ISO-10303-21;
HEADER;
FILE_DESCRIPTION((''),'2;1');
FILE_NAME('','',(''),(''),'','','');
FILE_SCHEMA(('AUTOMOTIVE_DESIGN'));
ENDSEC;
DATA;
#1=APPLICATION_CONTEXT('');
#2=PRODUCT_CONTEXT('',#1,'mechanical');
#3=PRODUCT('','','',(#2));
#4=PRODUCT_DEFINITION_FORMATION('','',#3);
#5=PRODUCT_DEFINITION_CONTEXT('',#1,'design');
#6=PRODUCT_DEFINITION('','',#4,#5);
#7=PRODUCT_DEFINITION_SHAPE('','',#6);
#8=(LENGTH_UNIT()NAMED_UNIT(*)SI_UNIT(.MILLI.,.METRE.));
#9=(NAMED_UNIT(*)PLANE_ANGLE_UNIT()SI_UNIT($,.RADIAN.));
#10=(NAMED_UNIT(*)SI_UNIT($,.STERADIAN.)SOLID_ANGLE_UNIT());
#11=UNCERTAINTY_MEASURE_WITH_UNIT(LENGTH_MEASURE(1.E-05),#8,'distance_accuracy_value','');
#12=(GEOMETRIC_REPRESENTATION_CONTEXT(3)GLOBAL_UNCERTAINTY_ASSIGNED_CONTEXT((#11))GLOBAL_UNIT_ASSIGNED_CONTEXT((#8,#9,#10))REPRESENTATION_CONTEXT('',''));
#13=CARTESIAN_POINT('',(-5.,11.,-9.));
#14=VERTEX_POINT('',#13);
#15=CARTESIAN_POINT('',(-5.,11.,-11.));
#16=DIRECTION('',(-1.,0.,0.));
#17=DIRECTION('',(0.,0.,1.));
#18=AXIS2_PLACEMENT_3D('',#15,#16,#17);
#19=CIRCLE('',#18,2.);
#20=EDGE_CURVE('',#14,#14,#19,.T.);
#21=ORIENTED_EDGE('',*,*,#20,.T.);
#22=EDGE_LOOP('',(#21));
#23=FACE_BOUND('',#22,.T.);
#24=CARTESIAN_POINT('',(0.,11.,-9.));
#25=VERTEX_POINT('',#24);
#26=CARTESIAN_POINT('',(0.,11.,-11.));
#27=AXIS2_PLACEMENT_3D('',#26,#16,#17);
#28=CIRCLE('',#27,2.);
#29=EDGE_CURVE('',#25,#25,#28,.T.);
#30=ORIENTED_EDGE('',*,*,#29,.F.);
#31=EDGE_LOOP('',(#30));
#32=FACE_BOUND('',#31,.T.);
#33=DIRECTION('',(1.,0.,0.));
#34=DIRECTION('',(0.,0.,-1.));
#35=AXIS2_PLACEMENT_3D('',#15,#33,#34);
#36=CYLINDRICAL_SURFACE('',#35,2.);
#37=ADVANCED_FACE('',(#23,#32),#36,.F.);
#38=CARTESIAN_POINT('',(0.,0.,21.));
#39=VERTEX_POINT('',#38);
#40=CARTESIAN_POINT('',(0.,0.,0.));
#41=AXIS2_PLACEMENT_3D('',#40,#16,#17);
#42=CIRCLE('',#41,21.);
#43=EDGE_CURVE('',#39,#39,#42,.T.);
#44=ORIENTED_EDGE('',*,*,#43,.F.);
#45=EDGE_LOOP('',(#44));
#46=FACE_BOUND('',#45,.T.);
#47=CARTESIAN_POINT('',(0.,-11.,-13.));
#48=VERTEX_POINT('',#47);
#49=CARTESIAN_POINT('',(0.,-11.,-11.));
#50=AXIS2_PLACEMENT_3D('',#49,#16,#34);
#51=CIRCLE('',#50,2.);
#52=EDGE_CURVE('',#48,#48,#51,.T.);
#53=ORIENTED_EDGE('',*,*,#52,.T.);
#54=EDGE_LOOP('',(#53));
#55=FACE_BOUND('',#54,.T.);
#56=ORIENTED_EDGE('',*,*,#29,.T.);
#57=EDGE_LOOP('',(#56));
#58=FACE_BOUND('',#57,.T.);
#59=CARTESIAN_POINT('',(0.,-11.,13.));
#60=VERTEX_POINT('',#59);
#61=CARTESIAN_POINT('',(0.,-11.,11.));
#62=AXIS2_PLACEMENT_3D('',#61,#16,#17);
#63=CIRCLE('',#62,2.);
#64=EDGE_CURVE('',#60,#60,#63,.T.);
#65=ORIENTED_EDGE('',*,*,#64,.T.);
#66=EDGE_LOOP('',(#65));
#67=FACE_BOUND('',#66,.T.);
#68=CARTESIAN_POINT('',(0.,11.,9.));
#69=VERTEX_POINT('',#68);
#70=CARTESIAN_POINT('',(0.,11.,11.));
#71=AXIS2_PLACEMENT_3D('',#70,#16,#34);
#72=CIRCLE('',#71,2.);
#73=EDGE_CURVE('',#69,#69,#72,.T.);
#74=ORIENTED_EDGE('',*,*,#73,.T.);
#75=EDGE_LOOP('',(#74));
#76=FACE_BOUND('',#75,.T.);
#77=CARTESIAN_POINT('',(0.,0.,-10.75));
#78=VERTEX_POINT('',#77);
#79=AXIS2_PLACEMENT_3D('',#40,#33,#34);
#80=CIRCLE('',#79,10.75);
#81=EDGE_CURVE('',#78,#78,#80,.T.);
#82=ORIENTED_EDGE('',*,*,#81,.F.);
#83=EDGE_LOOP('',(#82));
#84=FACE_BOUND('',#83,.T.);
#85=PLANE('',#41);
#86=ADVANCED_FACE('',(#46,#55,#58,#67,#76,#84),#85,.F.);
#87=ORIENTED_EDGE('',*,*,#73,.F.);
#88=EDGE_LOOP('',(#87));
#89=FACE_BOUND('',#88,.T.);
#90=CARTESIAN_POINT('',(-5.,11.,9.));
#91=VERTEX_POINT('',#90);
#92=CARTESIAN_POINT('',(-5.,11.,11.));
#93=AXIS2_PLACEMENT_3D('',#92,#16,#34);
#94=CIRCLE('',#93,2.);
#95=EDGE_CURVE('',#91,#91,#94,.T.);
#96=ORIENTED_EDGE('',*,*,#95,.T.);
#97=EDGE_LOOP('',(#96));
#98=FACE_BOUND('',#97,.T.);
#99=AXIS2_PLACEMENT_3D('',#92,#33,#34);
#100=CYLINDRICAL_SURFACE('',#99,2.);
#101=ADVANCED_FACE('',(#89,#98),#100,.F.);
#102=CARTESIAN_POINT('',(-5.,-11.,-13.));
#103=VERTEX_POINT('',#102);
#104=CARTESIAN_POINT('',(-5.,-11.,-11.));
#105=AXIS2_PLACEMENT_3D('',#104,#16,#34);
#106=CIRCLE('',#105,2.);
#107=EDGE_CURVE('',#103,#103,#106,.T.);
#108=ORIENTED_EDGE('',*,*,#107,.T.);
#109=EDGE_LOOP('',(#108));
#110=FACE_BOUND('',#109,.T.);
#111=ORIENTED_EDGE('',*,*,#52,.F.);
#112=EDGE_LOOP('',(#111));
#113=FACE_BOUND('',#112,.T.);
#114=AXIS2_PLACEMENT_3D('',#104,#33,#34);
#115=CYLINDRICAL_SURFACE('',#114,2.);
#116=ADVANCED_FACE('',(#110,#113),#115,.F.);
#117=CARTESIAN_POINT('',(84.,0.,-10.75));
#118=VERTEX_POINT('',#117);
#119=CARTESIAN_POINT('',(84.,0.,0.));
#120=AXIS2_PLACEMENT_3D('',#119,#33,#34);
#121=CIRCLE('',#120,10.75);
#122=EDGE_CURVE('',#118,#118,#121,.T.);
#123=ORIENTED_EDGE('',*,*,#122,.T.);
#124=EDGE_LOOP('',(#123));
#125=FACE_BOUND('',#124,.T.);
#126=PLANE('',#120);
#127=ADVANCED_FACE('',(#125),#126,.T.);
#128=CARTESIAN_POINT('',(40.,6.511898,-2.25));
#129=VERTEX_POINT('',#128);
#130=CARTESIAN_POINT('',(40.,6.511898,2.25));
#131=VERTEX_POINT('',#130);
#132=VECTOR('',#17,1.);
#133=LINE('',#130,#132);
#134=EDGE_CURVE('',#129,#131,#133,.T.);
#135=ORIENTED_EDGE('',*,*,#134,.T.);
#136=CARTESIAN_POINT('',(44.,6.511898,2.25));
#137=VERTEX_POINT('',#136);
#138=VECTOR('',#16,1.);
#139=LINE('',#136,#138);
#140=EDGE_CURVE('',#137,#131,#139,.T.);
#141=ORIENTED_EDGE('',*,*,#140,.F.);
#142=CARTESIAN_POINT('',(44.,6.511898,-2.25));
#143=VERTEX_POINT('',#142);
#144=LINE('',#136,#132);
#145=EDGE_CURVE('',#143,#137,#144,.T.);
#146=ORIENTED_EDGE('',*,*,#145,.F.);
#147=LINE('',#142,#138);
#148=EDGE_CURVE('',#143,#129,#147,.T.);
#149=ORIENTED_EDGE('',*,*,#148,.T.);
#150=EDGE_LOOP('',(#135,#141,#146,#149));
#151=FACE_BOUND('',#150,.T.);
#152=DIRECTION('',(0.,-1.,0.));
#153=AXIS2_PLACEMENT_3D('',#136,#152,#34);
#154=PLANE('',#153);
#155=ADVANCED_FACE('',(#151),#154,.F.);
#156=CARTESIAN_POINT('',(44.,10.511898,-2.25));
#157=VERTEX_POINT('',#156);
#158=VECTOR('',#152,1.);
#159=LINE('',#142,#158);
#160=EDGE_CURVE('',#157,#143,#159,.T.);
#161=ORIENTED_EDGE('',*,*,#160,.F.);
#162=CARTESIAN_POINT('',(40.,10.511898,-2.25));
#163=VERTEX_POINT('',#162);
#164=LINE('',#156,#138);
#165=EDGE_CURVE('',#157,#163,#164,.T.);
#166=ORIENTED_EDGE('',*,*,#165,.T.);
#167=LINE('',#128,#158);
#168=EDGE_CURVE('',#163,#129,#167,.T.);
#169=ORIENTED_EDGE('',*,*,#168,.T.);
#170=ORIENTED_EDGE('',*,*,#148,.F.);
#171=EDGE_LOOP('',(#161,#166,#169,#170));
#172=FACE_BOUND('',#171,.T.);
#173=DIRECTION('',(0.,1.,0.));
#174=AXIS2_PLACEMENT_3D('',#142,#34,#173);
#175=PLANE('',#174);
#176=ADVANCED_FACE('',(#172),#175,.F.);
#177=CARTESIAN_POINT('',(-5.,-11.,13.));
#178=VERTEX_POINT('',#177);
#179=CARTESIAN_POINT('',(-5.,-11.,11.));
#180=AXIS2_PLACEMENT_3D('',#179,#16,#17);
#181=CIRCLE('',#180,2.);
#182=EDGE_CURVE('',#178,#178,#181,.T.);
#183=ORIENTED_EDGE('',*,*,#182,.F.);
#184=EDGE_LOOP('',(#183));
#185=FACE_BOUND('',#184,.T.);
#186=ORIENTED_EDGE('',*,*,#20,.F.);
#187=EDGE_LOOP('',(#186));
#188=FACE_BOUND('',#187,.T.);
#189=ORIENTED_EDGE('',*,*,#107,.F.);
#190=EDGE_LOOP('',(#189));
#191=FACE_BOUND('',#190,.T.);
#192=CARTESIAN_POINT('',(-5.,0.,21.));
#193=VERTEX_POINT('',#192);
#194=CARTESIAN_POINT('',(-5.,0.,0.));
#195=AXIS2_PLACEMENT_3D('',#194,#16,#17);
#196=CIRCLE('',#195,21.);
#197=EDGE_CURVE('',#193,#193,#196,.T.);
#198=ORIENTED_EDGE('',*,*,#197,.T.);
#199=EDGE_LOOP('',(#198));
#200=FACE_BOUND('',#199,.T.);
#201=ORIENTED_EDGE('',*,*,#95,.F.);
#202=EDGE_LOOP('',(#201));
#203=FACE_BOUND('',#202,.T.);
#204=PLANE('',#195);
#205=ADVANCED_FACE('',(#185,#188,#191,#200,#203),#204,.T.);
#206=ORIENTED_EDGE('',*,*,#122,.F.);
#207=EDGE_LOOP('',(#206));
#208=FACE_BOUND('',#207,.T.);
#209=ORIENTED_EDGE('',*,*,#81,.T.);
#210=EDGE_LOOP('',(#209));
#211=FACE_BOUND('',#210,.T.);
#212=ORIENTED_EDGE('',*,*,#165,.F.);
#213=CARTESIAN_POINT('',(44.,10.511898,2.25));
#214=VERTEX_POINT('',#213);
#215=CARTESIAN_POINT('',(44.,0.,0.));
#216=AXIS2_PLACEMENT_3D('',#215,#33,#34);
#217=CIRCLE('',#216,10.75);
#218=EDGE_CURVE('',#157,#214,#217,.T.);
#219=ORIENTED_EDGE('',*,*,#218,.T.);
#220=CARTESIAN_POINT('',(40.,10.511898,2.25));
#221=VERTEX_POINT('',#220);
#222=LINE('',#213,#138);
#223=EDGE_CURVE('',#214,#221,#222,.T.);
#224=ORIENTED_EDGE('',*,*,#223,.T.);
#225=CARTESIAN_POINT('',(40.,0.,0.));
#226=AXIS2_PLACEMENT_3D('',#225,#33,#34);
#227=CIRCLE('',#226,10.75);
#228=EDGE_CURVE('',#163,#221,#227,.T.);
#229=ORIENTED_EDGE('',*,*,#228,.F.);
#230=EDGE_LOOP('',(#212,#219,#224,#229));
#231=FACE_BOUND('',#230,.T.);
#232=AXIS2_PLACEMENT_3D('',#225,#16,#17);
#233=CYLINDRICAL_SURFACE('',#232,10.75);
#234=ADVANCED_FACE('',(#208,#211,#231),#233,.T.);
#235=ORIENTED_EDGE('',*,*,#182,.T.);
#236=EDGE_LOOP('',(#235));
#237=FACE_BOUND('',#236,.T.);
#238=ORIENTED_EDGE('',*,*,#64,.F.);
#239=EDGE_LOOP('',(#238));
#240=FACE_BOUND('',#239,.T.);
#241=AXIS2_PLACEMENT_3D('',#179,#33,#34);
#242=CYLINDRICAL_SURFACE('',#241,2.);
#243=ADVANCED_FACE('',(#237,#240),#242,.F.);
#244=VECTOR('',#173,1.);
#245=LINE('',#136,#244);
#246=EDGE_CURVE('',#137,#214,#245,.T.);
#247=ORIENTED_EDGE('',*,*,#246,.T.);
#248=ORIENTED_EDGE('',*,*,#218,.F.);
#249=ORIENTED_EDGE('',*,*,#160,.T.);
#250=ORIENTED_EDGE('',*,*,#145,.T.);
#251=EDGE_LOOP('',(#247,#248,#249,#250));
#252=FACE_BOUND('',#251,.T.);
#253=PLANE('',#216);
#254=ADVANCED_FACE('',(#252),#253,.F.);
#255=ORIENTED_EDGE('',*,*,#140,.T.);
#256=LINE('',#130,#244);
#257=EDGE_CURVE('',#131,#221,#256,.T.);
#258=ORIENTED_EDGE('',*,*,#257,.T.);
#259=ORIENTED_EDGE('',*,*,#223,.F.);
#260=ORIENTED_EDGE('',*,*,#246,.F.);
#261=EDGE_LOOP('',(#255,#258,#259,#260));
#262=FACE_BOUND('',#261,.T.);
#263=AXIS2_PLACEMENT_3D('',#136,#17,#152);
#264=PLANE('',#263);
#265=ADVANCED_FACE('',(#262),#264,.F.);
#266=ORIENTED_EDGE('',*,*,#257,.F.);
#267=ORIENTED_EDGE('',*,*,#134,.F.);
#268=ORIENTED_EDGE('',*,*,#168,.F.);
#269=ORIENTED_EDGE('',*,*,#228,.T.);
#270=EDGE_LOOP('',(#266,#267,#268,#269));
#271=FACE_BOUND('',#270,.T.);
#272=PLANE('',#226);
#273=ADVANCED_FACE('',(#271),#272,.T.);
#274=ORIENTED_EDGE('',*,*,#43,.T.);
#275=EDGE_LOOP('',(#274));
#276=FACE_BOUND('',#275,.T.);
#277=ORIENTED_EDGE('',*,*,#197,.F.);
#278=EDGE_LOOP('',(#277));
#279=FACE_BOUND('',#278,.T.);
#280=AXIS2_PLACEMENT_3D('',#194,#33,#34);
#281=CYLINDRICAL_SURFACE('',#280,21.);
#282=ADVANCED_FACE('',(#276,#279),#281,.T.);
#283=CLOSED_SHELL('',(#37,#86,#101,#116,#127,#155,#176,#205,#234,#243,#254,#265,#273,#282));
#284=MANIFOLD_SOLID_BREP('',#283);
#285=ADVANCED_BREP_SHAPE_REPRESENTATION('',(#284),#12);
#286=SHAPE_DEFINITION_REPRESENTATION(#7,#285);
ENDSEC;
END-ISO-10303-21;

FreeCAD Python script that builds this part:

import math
import FreeCAD as App
import Part
import Sketcher

doc = App.newDocument("Part")
body = doc.addObject("PartDesign::Body", "Body")

# Sketch on YZ plane
sketch1 = body.newObject("Sketcher::SketchObject", "Sketch")
sketch1.AttachmentSupport = (doc.getObject("YZ_Plane"), [""])
sketch1.MapMode = "FlatFace"
sketch1.addGeometry(Part.Circle(App.Vector(0, 0, 0), App.Vector(0, 0, 1), 10.75), False)
sketch1.addConstraint(Sketcher.Constraint("Coincident", 0, 3, -1, 1))
sketch1.addConstraint(Sketcher.Constraint("Diameter", 0, 21.5))
pad1 = body.newObject("PartDesign::Pad", "Pad")
pad1.Profile = sketch1
pad1.Length = 40

# Sketch on YZ plane
sketch2 = body.newObject("Sketcher::SketchObject", "Sketch001")
sketch2.AttachmentSupport = (doc.getObject("YZ_Plane"), [""])
sketch2.MapMode = "FlatFace"
sketch2.addGeometry(Part.Circle(App.Vector(0, 0, 0), App.Vector(0, 0, 1), 21), False)
sketch2.addGeometry(Part.Circle(App.Vector(-11, -11, 0), App.Vector(0, 0, 1), 2), False)
sketch2.addGeometry(Part.Circle(App.Vector(-11, 11, 0), App.Vector(0, 0, 1), 2), False)
sketch2.addGeometry(Part.Circle(App.Vector(11, -11, 0), App.Vector(0, 0, 1), 2), False)
sketch2.addGeometry(Part.Circle(App.Vector(11, 11, 0), App.Vector(0, 0, 1), 2), False)
sketch2.addConstraint(Sketcher.Constraint("Coincident", 0, 3, -1, 1))
sketch2.addConstraint(Sketcher.Constraint("Equal", 1, 2))
sketch2.addConstraint(Sketcher.Constraint("Equal", 2, 3))
sketch2.addConstraint(Sketcher.Constraint("Equal", 3, 4))
sketch2.addConstraint(Sketcher.Constraint("Symmetric", 2, 3, 3, 3, -1, 1))
sketch2.addConstraint(Sketcher.Constraint("Symmetric", 1, 3, 4, 3, -1, 1))
sketch2.addConstraint(Sketcher.Constraint("Symmetric", 1, 3, 3, 3, -2))
sketch2.addConstraint(Sketcher.Constraint("Diameter", 0, 42.0))
sketch2.addConstraint(Sketcher.Constraint("Diameter", 1, 4.0))
sketch2.addConstraint(Sketcher.Constraint("DistanceX", 1, 3, -1, 1, 11.0))
sketch2.addConstraint(Sketcher.Constraint("DistanceY", 1, 3, -1, 1, 11.0))
pad2 = body.newObject("PartDesign::Pad", "Pad001")
pad2.Profile = sketch2
pad2.Length = 5
pad2.Reversed = True

# Sketch on YZ plane
sketch3 = body.newObject("Sketcher::SketchObject", "Sketch002")
sketch3.AttachmentSupport = (doc.getObject("YZ_Plane"), [""])
sketch3.MapMode = "FlatFace"
sketch3.AttachmentOffset = App.Placement(App.Vector(0, 0, 40), App.Rotation())
sketch3.addGeometry(Part.LineSegment(App.Vector(6.511898, -2.25, 0), App.Vector(6.511898, 2.25, 0)), False)
sketch3.addGeometry(Part.LineSegment(App.Vector(6.511898, 2.25, 0), App.Vector(10.511898, 2.25, 0)), False)
sketch3.addGeometry(Part.ArcOfCircle(Part.Circle(App.Vector(0, 0, 0), App.Vector(0, 0, 1), 10.75), math.radians(12.08147), math.radians(347.91853)), False)
sketch3.addGeometry(Part.LineSegment(App.Vector(10.511898, -2.25, 0), App.Vector(6.511898, -2.25, 0)), False)
sketch3.addConstraint(Sketcher.Constraint("Coincident", 0, 2, 1, 1))
sketch3.addConstraint(Sketcher.Constraint("Coincident", 1, 2, 2, 1))
sketch3.addConstraint(Sketcher.Constraint("Coincident", 2, 2, 3, 1))
sketch3.addConstraint(Sketcher.Constraint("Coincident", 3, 2, 0, 1))
sketch3.addConstraint(Sketcher.Constraint("Vertical", 0))
sketch3.addConstraint(Sketcher.Constraint("Horizontal", 1))
sketch3.addConstraint(Sketcher.Constraint("Horizontal", 3))
sketch3.addConstraint(Sketcher.Constraint("Coincident", 2, 3, -1, 1))
sketch3.addConstraint(Sketcher.Constraint("Vertical", 1, 2, 2, 2))
sketch3.addConstraint(Sketcher.Constraint("DistanceX", 1, 1, 1, 2, 4.0))
sketch3.addConstraint(Sketcher.Constraint("Radius", 2, 10.75))
sketch3.addConstraint(Sketcher.Constraint("DistanceY", 0, 1, 0, 2, 4.5))
pad3 = body.newObject("PartDesign::Pad", "Pad002")
pad3.Profile = sketch3
pad3.Length = 4

# Sketch on YZ plane
sketch4 = body.newObject("Sketcher::SketchObject", "Sketch003")
sketch4.AttachmentSupport = (doc.getObject("YZ_Plane"), [""])
sketch4.MapMode = "FlatFace"
sketch4.AttachmentOffset = App.Placement(App.Vector(0, 0, 44), App.Rotation())
sketch4.addGeometry(Part.Circle(App.Vector(0, 0, 0), App.Vector(0, 0, 1), 10.75), False)
sketch4.addConstraint(Sketcher.Constraint("Coincident", 0, 3, -1, 1))
sketch4.addConstraint(Sketcher.Constraint("Diameter", 0, 21.5))
pad4 = body.newObject("PartDesign::Pad", "Pad003")
pad4.Profile = sketch4
pad4.Length = 40

doc.recompute()
